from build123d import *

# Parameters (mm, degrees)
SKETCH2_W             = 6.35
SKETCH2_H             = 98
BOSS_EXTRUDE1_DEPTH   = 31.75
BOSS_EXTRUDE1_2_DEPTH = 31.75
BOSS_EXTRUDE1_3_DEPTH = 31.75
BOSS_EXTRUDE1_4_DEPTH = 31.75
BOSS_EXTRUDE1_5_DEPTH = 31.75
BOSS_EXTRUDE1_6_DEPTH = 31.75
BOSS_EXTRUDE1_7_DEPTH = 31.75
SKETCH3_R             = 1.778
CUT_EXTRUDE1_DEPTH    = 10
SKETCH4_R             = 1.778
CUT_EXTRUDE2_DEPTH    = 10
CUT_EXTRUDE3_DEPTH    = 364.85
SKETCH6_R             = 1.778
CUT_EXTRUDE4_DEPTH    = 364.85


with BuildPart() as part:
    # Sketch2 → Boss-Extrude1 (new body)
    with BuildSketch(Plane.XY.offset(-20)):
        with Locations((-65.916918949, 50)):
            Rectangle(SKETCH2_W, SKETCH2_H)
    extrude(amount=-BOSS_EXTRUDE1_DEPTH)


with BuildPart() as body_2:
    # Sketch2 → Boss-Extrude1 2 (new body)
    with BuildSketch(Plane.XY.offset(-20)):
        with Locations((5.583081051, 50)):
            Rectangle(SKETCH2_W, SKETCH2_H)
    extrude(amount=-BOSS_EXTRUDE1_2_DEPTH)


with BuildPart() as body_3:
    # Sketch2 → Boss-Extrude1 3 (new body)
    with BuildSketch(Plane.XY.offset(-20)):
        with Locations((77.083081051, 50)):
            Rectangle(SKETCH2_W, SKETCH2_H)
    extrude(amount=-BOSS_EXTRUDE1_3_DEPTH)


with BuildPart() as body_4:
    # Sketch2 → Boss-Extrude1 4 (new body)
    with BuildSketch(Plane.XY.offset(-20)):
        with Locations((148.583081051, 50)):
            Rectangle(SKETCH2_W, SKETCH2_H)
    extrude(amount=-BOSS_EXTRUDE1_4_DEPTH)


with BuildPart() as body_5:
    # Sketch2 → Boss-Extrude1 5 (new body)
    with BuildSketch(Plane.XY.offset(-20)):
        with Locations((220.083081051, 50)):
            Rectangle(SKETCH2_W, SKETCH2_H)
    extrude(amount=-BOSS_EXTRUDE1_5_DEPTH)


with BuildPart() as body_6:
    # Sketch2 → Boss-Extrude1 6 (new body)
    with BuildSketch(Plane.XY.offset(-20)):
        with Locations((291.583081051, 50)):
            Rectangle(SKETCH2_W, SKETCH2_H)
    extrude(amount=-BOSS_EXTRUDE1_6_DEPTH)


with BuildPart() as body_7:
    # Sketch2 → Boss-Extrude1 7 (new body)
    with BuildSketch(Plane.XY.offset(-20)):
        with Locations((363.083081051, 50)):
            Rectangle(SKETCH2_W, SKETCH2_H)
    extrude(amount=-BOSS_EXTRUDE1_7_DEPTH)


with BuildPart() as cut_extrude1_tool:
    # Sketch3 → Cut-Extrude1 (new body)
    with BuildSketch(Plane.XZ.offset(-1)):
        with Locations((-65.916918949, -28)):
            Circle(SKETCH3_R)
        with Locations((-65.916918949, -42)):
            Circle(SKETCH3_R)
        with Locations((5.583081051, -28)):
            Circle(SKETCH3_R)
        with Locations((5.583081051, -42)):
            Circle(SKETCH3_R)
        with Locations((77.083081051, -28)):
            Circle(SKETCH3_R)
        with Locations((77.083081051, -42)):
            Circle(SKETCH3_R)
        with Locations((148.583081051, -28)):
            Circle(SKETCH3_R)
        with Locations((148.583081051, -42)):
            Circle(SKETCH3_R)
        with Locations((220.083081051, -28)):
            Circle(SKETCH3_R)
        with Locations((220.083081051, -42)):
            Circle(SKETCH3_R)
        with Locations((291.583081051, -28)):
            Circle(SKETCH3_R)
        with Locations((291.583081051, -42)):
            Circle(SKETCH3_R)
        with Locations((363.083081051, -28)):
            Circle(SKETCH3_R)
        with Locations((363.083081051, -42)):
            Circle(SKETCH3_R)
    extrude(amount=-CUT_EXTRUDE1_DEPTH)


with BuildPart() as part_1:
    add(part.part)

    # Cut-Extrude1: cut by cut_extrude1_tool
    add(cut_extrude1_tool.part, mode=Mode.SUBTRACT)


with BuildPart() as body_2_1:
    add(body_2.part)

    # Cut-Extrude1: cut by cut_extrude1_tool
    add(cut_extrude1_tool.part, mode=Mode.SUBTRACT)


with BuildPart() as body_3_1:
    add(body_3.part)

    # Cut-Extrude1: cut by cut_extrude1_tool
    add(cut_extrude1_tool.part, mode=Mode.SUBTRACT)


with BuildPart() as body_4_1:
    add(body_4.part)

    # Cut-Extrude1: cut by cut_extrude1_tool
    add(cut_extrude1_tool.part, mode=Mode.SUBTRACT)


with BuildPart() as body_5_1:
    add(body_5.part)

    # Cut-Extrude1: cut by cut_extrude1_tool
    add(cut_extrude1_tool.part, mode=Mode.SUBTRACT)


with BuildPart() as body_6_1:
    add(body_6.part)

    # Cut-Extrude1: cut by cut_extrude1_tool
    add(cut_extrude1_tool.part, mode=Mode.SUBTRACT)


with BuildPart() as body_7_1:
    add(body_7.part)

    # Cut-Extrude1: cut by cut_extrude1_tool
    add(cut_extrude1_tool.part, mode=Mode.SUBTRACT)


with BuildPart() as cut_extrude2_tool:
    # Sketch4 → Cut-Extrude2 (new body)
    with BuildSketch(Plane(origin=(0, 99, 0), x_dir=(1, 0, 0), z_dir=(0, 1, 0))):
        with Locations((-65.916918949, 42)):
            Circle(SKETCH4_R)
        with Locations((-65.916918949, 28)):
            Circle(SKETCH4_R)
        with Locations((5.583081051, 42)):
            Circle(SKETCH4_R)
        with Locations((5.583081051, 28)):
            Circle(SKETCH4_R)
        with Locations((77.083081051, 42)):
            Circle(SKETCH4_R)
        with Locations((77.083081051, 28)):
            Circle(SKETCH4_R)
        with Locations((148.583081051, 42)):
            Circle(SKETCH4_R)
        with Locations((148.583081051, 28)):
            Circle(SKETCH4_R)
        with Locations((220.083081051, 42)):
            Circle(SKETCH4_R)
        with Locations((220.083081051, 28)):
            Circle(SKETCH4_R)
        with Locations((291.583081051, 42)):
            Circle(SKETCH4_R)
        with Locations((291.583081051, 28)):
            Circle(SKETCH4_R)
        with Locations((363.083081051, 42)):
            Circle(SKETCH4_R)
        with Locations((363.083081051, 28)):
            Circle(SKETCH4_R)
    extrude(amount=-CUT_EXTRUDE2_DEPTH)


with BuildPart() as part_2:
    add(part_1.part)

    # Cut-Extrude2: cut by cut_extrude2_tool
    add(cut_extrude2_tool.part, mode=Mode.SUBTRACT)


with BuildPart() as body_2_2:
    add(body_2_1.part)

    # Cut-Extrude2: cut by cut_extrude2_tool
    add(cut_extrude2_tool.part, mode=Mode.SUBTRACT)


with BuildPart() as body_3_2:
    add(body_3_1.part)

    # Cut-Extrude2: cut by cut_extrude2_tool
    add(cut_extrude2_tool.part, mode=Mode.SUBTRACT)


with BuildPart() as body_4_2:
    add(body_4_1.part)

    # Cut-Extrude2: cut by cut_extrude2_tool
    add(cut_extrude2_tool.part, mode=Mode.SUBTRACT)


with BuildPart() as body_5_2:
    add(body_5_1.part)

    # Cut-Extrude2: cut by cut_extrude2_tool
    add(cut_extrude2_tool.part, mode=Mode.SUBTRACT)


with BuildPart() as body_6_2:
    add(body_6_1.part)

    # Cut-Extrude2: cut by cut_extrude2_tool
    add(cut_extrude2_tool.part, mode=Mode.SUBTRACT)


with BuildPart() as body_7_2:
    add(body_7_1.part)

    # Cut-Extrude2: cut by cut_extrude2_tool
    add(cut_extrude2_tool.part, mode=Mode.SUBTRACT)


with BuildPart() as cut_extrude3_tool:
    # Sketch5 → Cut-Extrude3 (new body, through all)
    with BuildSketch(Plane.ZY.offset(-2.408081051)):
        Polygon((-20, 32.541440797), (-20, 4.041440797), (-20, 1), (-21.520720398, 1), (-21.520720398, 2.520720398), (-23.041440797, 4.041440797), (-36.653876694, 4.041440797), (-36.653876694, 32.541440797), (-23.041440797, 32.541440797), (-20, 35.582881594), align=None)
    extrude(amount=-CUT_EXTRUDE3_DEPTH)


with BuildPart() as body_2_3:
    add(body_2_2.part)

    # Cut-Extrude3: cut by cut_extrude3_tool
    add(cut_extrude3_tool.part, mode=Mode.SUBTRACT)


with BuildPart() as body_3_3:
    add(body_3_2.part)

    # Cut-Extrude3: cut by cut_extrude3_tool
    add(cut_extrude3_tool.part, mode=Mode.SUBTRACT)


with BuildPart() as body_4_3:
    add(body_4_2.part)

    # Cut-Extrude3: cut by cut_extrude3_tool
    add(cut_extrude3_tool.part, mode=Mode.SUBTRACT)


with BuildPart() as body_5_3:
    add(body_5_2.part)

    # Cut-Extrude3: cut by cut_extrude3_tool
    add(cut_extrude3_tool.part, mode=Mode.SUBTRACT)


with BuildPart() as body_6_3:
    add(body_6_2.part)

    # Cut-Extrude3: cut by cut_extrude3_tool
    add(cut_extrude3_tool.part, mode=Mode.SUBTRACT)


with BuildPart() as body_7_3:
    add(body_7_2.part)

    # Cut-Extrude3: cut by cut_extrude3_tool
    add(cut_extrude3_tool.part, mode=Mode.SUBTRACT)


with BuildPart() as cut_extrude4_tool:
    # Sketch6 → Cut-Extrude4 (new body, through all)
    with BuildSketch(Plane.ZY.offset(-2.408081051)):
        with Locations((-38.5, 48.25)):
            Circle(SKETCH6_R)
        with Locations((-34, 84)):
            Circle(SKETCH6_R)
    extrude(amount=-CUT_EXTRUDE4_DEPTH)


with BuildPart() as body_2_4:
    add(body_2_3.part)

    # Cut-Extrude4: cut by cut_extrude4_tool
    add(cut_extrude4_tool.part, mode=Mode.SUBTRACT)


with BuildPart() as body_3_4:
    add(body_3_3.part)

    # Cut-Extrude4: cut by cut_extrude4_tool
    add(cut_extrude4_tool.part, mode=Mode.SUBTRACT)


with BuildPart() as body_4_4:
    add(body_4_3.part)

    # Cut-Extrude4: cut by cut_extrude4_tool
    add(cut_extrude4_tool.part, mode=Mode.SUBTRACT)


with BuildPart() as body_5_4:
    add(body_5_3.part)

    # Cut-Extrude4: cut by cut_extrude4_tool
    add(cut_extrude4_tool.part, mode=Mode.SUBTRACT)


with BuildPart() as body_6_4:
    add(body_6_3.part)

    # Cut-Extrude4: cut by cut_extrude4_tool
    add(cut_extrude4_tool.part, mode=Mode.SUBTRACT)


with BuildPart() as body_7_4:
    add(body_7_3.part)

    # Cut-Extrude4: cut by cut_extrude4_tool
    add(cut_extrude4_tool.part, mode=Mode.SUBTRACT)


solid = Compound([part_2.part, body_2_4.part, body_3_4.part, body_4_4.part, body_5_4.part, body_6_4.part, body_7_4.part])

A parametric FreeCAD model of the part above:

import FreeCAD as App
import Part
import Sketcher
Q = App.Units.Quantity


def add_polygon(sketch, points):
    """Adds a closed chain of lines whose ends are joined by coincident constraints."""
    first, n = sketch.GeometryCount, len(points)
    for a, b in zip(points, points[1:] + points[:1]):
        sketch.addGeometry(Part.LineSegment(App.Vector(*a, 0), App.Vector(*b, 0)), False)
    for i in range(n):
        sketch.addConstraint(Sketcher.Constraint("Coincident", first + i, 2, first + (i + 1) % n, 1))

doc = App.newDocument("Part")
body = doc.addObject("PartDesign::Body", "Body")

# Sketch on XY plane
sketch1 = body.newObject("Sketcher::SketchObject", "Sketch")
sketch1.AttachmentSupport = (doc.getObject("XY_Plane"), [""])
sketch1.MapMode = "FlatFace"
sketch1.AttachmentOffset = App.Placement(App.Vector(0, 0, -20), App.Rotation())
add_polygon(sketch1, [(-69, 99), (-69, 1), (-63, 1), (-63, 99)])  # lines 0-3
sketch1.addConstraint(Sketcher.Constraint("Vertical", 0))
sketch1.addConstraint(Sketcher.Constraint("Horizontal", 1))
sketch1.addConstraint(Sketcher.Constraint("Vertical", 2))
sketch1.addConstraint(Sketcher.Constraint("Horizontal", 3))
sketch1.addConstraint(Sketcher.Constraint("DistanceY", 0, 2, 0, 1, 98.0))
sketch1.addConstraint(Sketcher.Constraint("DistanceY", -1, 1, 0, 2, 1.0))
sketch1.addConstraint(Sketcher.Constraint("DistanceX", 1, 1, 1, 2, 6.35))
sketch1.addConstraint(Sketcher.Constraint("DistanceX", 0, 2, -1, 1, 69.091919))
pad1 = body.newObject("PartDesign::Pad", "Pad")
pad1.Profile = sketch1
pad1.Length = 31.75
pad1.Reversed = True
body2 = doc.addObject("PartDesign::Body", "Body001")

# Sketch on XY plane
sketch2 = body2.newObject("Sketcher::SketchObject", "Sketch001")
sketch2.AttachmentSupport = (doc.getObject("XY_Plane001"), [""])
sketch2.MapMode = "FlatFace"
sketch2.AttachmentOffset = App.Placement(App.Vector(0, 0, -20), App.Rotation())
add_polygon(sketch2, [(2, 99), (2, 1), (9, 1), (9, 99)])  # lines 0-3
sketch2.addConstraint(Sketcher.Constraint("Vertical", 0))
sketch2.addConstraint(Sketcher.Constraint("Horizontal", 1))
sketch2.addConstraint(Sketcher.Constraint("Vertical", 2))
sketch2.addConstraint(Sketcher.Constraint("Horizontal", 3))
sketch2.addConstraint(Sketcher.Constraint("DistanceY", 0, 2, 0, 1, 98.0))
sketch2.addConstraint(Sketcher.Constraint("DistanceY", -1, 1, 0, 2, 1.0))
sketch2.addConstraint(Sketcher.Constraint("DistanceX", 1, 1, 1, 2, 6.35))
sketch2.addConstraint(Sketcher.Constraint("DistanceX", -1, 1, 0, 2, 2.408081))
pad2 = body2.newObject("PartDesign::Pad", "Pad001")
pad2.Profile = sketch2
pad2.Length = 31.75
pad2.Reversed = True
body3 = doc.addObject("PartDesign::Body", "Body002")

# Sketch on XY plane
sketch3 = body3.newObject("Sketcher::SketchObject", "Sketch002")
sketch3.AttachmentSupport = (doc.getObject("XY_Plane002"), [""])
sketch3.MapMode = "FlatFace"
sketch3.AttachmentOffset = App.Placement(App.Vector(0, 0, -20), App.Rotation())
add_polygon(sketch3, [(74, 99), (74, 1), (80, 1), (80, 99)])  # lines 0-3
sketch3.addConstraint(Sketcher.Constraint("Vertical", 0))
sketch3.addConstraint(Sketcher.Constraint("Horizontal", 1))
sketch3.addConstraint(Sketcher.Constraint("Vertical", 2))
sketch3.addConstraint(Sketcher.Constraint("Horizontal", 3))
sketch3.addConstraint(Sketcher.Constraint("DistanceY", 0, 2, 0, 1, 98.0))
sketch3.addConstraint(Sketcher.Constraint("DistanceY", -1, 1, 0, 2, 1.0))
sketch3.addConstraint(Sketcher.Constraint("DistanceX", 1, 1, 1, 2, 6.35))
sketch3.addConstraint(Sketcher.Constraint("DistanceX", -1, 1, 0, 2, 73.908081))
pad3 = body3.newObject("PartDesign::Pad", "Pad002")
pad3.Profile = sketch3
pad3.Length = 31.75
pad3.Reversed = True
body4 = doc.addObject("PartDesign::Body", "Body003")

# Sketch on XY plane
sketch4 = body4.newObject("Sketcher::SketchObject", "Sketch003")
sketch4.AttachmentSupport = (doc.getObject("XY_Plane003"), [""])
sketch4.MapMode = "FlatFace"
sketch4.AttachmentOffset = App.Placement(App.Vector(0, 0, -20), App.Rotation())
add_polygon(sketch4, [(145, 99), (145, 1), (152, 1), (152, 99)])  # lines 0-3
sketch4.addConstraint(Sketcher.Constraint("Vertical", 0))
sketch4.addConstraint(Sketcher.Constraint("Horizontal", 1))
sketch4.addConstraint(Sketcher.Constraint("Vertical", 2))
sketch4.addConstraint(Sketcher.Constraint("Horizontal", 3))
sketch4.addConstraint(Sketcher.Constraint("DistanceY", 0, 2, 0, 1, 98.0))
sketch4.addConstraint(Sketcher.Constraint("DistanceY", -1, 1, 0, 2, 1.0))
sketch4.addConstraint(Sketcher.Constraint("DistanceX", 1, 1, 1, 2, 6.35))
sketch4.addConstraint(Sketcher.Constraint("DistanceX", -1, 1, 0, 2, 145.408081))
pad4 = body4.newObject("PartDesign::Pad", "Pad003")
pad4.Profile = sketch4
pad4.Length = 31.75
pad4.Reversed = True
body5 = doc.addObject("PartDesign::Body", "Body004")

# Sketch on XY plane
sketch5 = body5.newObject("Sketcher::SketchObject", "Sketch004")
sketch5.AttachmentSupport = (doc.getObject("XY_Plane004"), [""])
sketch5.MapMode = "FlatFace"
sketch5.AttachmentOffset = App.Placement(App.Vector(0, 0, -20), App.Rotation())
add_polygon(sketch5, [(217, 99), (217, 1), (223, 1), (223, 99)])  # lines 0-3
sketch5.addConstraint(Sketcher.Constraint("Vertical", 0))
sketch5.addConstraint(Sketcher.Constraint("Horizontal", 1))
sketch5.addConstraint(Sketcher.Constraint("Vertical", 2))
sketch5.addConstraint(Sketcher.Constraint("Horizontal", 3))
sketch5.addConstraint(Sketcher.Constraint("DistanceY", 0, 2, 0, 1, 98.0))
sketch5.addConstraint(Sketcher.Constraint("DistanceY", -1, 1, 0, 2, 1.0))
sketch5.addConstraint(Sketcher.Constraint("DistanceX", 1, 1, 1, 2, 6.35))
sketch5.addConstraint(Sketcher.Constraint("DistanceX", -1, 1, 0, 2, 216.908081))
pad5 = body5.newObject("PartDesign::Pad", "Pad004")
pad5.Profile = sketch5
pad5.Length = 31.75
pad5.Reversed = True
body6 = doc.addObject("PartDesign::Body", "Body005")

# Sketch on XY plane
sketch6 = body6.newObject("Sketcher::SketchObject", "Sketch005")
sketch6.AttachmentSupport = (doc.getObject("XY_Plane005"), [""])
sketch6.MapMode = "FlatFace"
sketch6.AttachmentOffset = App.Placement(App.Vector(0, 0, -20), App.Rotation())
add_polygon(sketch6, [(288, 99), (288, 1), (295, 1), (295, 99)])  # lines 0-3
sketch6.addConstraint(Sketcher.Constraint("Vertical", 0))
sketch6.addConstraint(Sketcher.Constraint("Horizontal", 1))
sketch6.addConstraint(Sketcher.Constraint("Vertical", 2))
sketch6.addConstraint(Sketcher.Constraint("Horizontal", 3))
sketch6.addConstraint(Sketcher.Constraint("DistanceY", 0, 2, 0, 1, 98.0))
sketch6.addConstraint(Sketcher.Constraint("DistanceY", -1, 1, 0, 2, 1.0))
sketch6.addConstraint(Sketcher.Constraint("DistanceX", 1, 1, 1, 2, 6.35))
sketch6.addConstraint(Sketcher.Constraint("DistanceX", -1, 1, 0, 2, 288.408081))
pad6 = body6.newObject("PartDesign::Pad", "Pad005")
pad6.Profile = sketch6
pad6.Length = 31.75
pad6.Reversed = True
body7 = doc.addObject("PartDesign::Body", "Body006")

# Sketch on XY plane
sketch7 = body7.newObject("Sketcher::SketchObject", "Sketch006")
sketch7.AttachmentSupport = (doc.getObject("XY_Plane006"), [""])
sketch7.MapMode = "FlatFace"
sketch7.AttachmentOffset = App.Placement(App.Vector(0, 0, -20), App.Rotation())
add_polygon(sketch7, [(360, 99), (360, 1), (366, 1), (366, 99)])  # lines 0-3
sketch7.addConstraint(Sketcher.Constraint("Vertical", 0))
sketch7.addConstraint(Sketcher.Constraint("Horizontal", 1))
sketch7.addConstraint(Sketcher.Constraint("Vertical", 2))
sketch7.addConstraint(Sketcher.Constraint("Horizontal", 3))
sketch7.addConstraint(Sketcher.Constraint("DistanceY", 0, 2, 0, 1, 98.0))
sketch7.addConstraint(Sketcher.Constraint("DistanceY", -1, 1, 0, 2, 1.0))
sketch7.addConstraint(Sketcher.Constraint("DistanceX", 1, 1, 1, 2, 6.35))
sketch7.addConstraint(Sketcher.Constraint("DistanceX", -1, 1, 0, 2, 359.908081))
pad7 = body7.newObject("PartDesign::Pad", "Pad006")
pad7.Profile = sketch7
pad7.Length = 31.75
pad7.Reversed = True
body8 = doc.addObject("PartDesign::Body", "Body007")
body8.AllowCompound = True

# Sketch on XZ plane
sketch8 = body8.newObject("Sketcher::SketchObject", "Sketch007")
sketch8.AttachmentSupport = (doc.getObject("XZ_Plane007"), [""])
sketch8.MapMode = "FlatFace"
sketch8.AttachmentOffset = App.Placement(App.Vector(0, 0, -1), App.Rotation())
sketch8.addGeometry(Part.Circle(App.Vector(-65.9, -28, 0), App.Vector(0, 0, 1), 1.8), False)
sketch8.addGeometry(Part.Circle(App.Vector(-65.9, -42, 0), App.Vector(0, 0, 1), 1.8), False)
sketch8.addGeometry(Part.Circle(App.Vector(5.6, -28, 0), App.Vector(0, 0, 1), 1.8), False)
sketch8.addGeometry(Part.Circle(App.Vector(5.6, -42, 0), App.Vector(0, 0, 1), 1.8), False)
sketch8.addGeometry(Part.Circle(App.Vector(77.1, -28, 0), App.Vector(0, 0, 1), 1.8), False)
sketch8.addGeometry(Part.Circle(App.Vector(77.1, -42, 0), App.Vector(0, 0, 1), 1.8), False)
sketch8.addGeometry(Part.Circle(App.Vector(148.6, -28, 0), App.Vector(0, 0, 1), 1.8), False)
sketch8.addGeometry(Part.Circle(App.Vector(148.6, -42, 0), App.Vector(0, 0, 1), 1.8), False)
sketch8.addGeometry(Part.Circle(App.Vector(220.1, -28, 0), App.Vector(0, 0, 1), 1.8), False)
sketch8.addGeometry(Part.Circle(App.Vector(220.1, -42, 0), App.Vector(0, 0, 1), 1.8), False)
sketch8.addGeometry(Part.Circle(App.Vector(291.6, -28, 0), App.Vector(0, 0, 1), 1.8), False)
sketch8.addGeometry(Part.Circle(App.Vector(291.6, -42, 0), App.Vector(0, 0, 1), 1.8), False)
sketch8.addGeometry(Part.Circle(App.Vector(363.1, -28, 0), App.Vector(0, 0, 1), 1.8), False)
sketch8.addGeometry(Part.Circle(App.Vector(363.1, -42, 0), App.Vector(0, 0, 1), 1.8), False)
sketch8.addConstraint(Sketcher.Constraint("Equal", 0, 1))
sketch8.addConstraint(Sketcher.Constraint("Equal", 1, 2))
sketch8.addConstraint(Sketcher.Constraint("Equal", 2, 3))
sketch8.addConstraint(Sketcher.Constraint("Equal", 3, 4))
sketch8.addConstraint(Sketcher.Constraint("Equal", 4, 5))
sketch8.addConstraint(Sketcher.Constraint("Equal", 5, 6))
sketch8.addConstraint(Sketcher.Constraint("Equal", 6, 7))
sketch8.addConstraint(Sketcher.Constraint("Equal", 7, 8))
sketch8.addConstraint(Sketcher.Constraint("Equal", 8, 9))
sketch8.addConstraint(Sketcher.Constraint("Equal", 9, 10))
sketch8.addConstraint(Sketcher.Constraint("Equal", 10, 11))
sketch8.addConstraint(Sketcher.Constraint("Equal", 11, 12))
sketch8.addConstraint(Sketcher.Constraint("Equal", 12, 13))
sketch8.addConstraint(Sketcher.Constraint("Horizontal", 0, 3, 2, 3))
sketch8.addConstraint(Sketcher.Constraint("Horizontal", 1, 3, 3, 3))
sketch8.addConstraint(Sketcher.Constraint("Horizontal", 2, 3, 4, 3))
sketch8.addConstraint(Sketcher.Constraint("Horizontal", 3, 3, 5, 3))
sketch8.addConstraint(Sketcher.Constraint("Horizontal", 4, 3, 6, 3))
sketch8.addConstraint(Sketcher.Constraint("Horizontal", 5, 3, 7, 3))
sketch8.addConstraint(Sketcher.Constraint("Horizontal", 6, 3, 8, 3))
sketch8.addConstraint(Sketcher.Constraint("Horizontal", 7, 3, 9, 3))
sketch8.addConstraint(Sketcher.Constraint("Horizontal", 8, 3, 10, 3))
sketch8.addConstraint(Sketcher.Constraint("Horizontal", 9, 3, 11, 3))
sketch8.addConstraint(Sketcher.Constraint("Horizontal", 10, 3, 12, 3))
sketch8.addConstraint(Sketcher.Constraint("Horizontal", 11, 3, 13, 3))
sketch8.addConstraint(Sketcher.Constraint("Vertical", 0, 3, 1, 3))
sketch8.addConstraint(Sketcher.Constraint("Vertical", 2, 3, 3, 3))
sketch8.addConstraint(Sketcher.Constraint("Vertical", 4, 3, 5, 3))
sketch8.addConstraint(Sketcher.Constraint("Vertical", 6, 3, 7, 3))
sketch8.addConstraint(Sketcher.Constraint("Vertical", 8, 3, 9, 3))
sketch8.addConstraint(Sketcher.Constraint("Vertical", 10, 3, 11, 3))
sketch8.addConstraint(Sketcher.Constraint("Vertical", 12, 3, 13, 3))
sketch8.addConstraint(Sketcher.Constraint("Diameter", 0, 3.556))
sketch8.addConstraint(Sketcher.Constraint("DistanceY", 0, 3, -1, 1, 28.0))
sketch8.addConstraint(Sketcher.Constraint("DistanceY", 1, 3, -1, 1, 42.0))
sketch8.addConstraint(Sketcher.Constraint("DistanceX", 0, 3, 4, 3, 143.0))
sketch8.addConstraint(Sketcher.Constraint("DistanceX", 2, 3, 6, 3, 143.0))
sketch8.addConstraint(Sketcher.Constraint("DistanceX", 4, 3, 8, 3, 143.0))
sketch8.addConstraint(Sketcher.Constraint("DistanceX", 6, 3, 10, 3, 143.0))
sketch8.addConstraint(Sketcher.Constraint("DistanceX", 8, 3, 12, 3, 143.0))
sketch8.addConstraint(Sketcher.Constraint("DistanceX", 0, 3, 2, 3, 71.5))
sketch8.addConstraint(Sketcher.Constraint("DistanceX", 0, 3, -1, 1, 65.916919))
pad8 = body8.newObject("PartDesign::Pad", "Pad007")
pad8.Profile = sketch8
pad8.Length = 10
pad8.Reversed = True
doc.recompute()

body9 = doc.addObject("PartDesign::Body", "Body008")
body9.BaseFeature = body8
boolean = body.newObject("PartDesign::Boolean", "Boolean")
boolean.Type = "Cut"
boolean.addObjects([body9])
doc.recompute()

body10 = doc.addObject("PartDesign::Body", "Body009")
body10.BaseFeature = body8
boolean2 = body2.newObject("PartDesign::Boolean", "Boolean001")
boolean2.Type = "Cut"
boolean2.addObjects([body10])
doc.recompute()

body11 = doc.addObject("PartDesign::Body", "Body010")
body11.BaseFeature = body8
boolean3 = body3.newObject("PartDesign::Boolean", "Boolean002")
boolean3.Type = "Cut"
boolean3.addObjects([body11])
doc.recompute()

body12 = doc.addObject("PartDesign::Body", "Body011")
body12.BaseFeature = body8
boolean4 = body4.newObject("PartDesign::Boolean", "Boolean003")
boolean4.Type = "Cut"
boolean4.addObjects([body12])
doc.recompute()

body13 = doc.addObject("PartDesign::Body", "Body012")
body13.BaseFeature = body8
boolean5 = body5.newObject("PartDesign::Boolean", "Boolean004")
boolean5.Type = "Cut"
boolean5.addObjects([body13])
doc.recompute()

body14 = doc.addObject("PartDesign::Body", "Body013")
body14.BaseFeature = body8
boolean6 = body6.newObject("PartDesign::Boolean", "Boolean005")
boolean6.Type = "Cut"
boolean6.addObjects([body14])
doc.recompute()

boolean7 = body7.newObject("PartDesign::Boolean", "Boolean006")
boolean7.Type = "Cut"
boolean7.addObjects([body8])
body15 = doc.addObject("PartDesign::Body", "Body014")
body15.AllowCompound = True

# Sketch on XZ plane
sketch9 = body15.newObject("Sketcher::SketchObject", "Sketch008")
sketch9.AttachmentSupport = (doc.getObject("XZ_Plane014"), [""])
sketch9.MapMode = "FlatFace"
sketch9.AttachmentOffset = App.Placement(App.Vector(0, 0, -99), App.Rotation())
sketch9.addGeometry(Part.Circle(App.Vector(-65.9, -42, 0), App.Vector(0, 0, 1), 1.8), False)
sketch9.addGeometry(Part.Circle(App.Vector(-65.9, -28, 0), App.Vector(0, 0, 1), 1.8), False)
sketch9.addGeometry(Part.Circle(App.Vector(5.6, -42, 0), App.Vector(0, 0, 1), 1.8), False)
sketch9.addGeometry(Part.Circle(App.Vector(5.6, -28, 0), App.Vector(0, 0, 1), 1.8), False)
sketch9.addGeometry(Part.Circle(App.Vector(77.1, -42, 0), App.Vector(0, 0, 1), 1.8), False)
sketch9.addGeometry(Part.Circle(App.Vector(77.1, -28, 0), App.Vector(0, 0, 1), 1.8), False)
sketch9.addGeometry(Part.Circle(App.Vector(148.6, -42, 0), App.Vector(0, 0, 1), 1.8), False)
sketch9.addGeometry(Part.Circle(App.Vector(148.6, -28, 0), App.Vector(0, 0, 1), 1.8), False)
sketch9.addGeometry(Part.Circle(App.Vector(220.1, -42, 0), App.Vector(0, 0, 1), 1.8), False)
sketch9.addGeometry(Part.Circle(App.Vector(220.1, -28, 0), App.Vector(0, 0, 1), 1.8), False)
sketch9.addGeometry(Part.Circle(App.Vector(291.6, -42, 0), App.Vector(0, 0, 1), 1.8), False)
sketch9.addGeometry(Part.Circle(App.Vector(291.6, -28, 0), App.Vector(0, 0, 1), 1.8), False)
sketch9.addGeometry(Part.Circle(App.Vector(363.1, -42, 0), App.Vector(0, 0, 1), 1.8), False)
sketch9.addGeometry(Part.Circle(App.Vector(363.1, -28, 0), App.Vector(0, 0, 1), 1.8), False)
sketch9.addConstraint(Sketcher.Constraint("Equal", 0, 1))
sketch9.addConstraint(Sketcher.Constraint("Equal", 1, 2))
sketch9.addConstraint(Sketcher.Constraint("Equal", 2, 3))
sketch9.addConstraint(Sketcher.Constraint("Equal", 3, 4))
sketch9.addConstraint(Sketcher.Constraint("Equal", 4, 5))
sketch9.addConstraint(Sketcher.Constraint("Equal", 5, 6))
sketch9.addConstraint(Sketcher.Constraint("Equal", 6, 7))
sketch9.addConstraint(Sketcher.Constraint("Equal", 7, 8))
sketch9.addConstraint(Sketcher.Constraint("Equal", 8, 9))
sketch9.addConstraint(Sketcher.Constraint("Equal", 9, 10))
sketch9.addConstraint(Sketcher.Constraint("Equal", 10, 11))
sketch9.addConstraint(Sketcher.Constraint("Equal", 11, 12))
sketch9.addConstraint(Sketcher.Constraint("Equal", 12, 13))
sketch9.addConstraint(Sketcher.Constraint("Horizontal", 0, 3, 2, 3))
sketch9.addConstraint(Sketcher.Constraint("Horizontal", 1, 3, 3, 3))
sketch9.addConstraint(Sketcher.Constraint("Horizontal", 2, 3, 4, 3))
sketch9.addConstraint(Sketcher.Constraint("Horizontal", 3, 3, 5, 3))
sketch9.addConstraint(Sketcher.Constraint("Horizontal", 4, 3, 6, 3))
sketch9.addConstraint(Sketcher.Constraint("Horizontal", 5, 3, 7, 3))
sketch9.addConstraint(Sketcher.Constraint("Horizontal", 6, 3, 8, 3))
sketch9.addConstraint(Sketcher.Constraint("Horizontal", 7, 3, 9, 3))
sketch9.addConstraint(Sketcher.Constraint("Horizontal", 8, 3, 10, 3))
sketch9.addConstraint(Sketcher.Constraint("Horizontal", 9, 3, 11, 3))
sketch9.addConstraint(Sketcher.Constraint("Horizontal", 10, 3, 12, 3))
sketch9.addConstraint(Sketcher.Constraint("Horizontal", 11, 3, 13, 3))
sketch9.addConstraint(Sketcher.Constraint("Vertical", 0, 3, 1, 3))
sketch9.addConstraint(Sketcher.Constraint("Vertical", 2, 3, 3, 3))
sketch9.addConstraint(Sketcher.Constraint("Vertical", 4, 3, 5, 3))
sketch9.addConstraint(Sketcher.Constraint("Vertical", 6, 3, 7, 3))
sketch9.addConstraint(Sketcher.Constraint("Vertical", 8, 3, 9, 3))
sketch9.addConstraint(Sketcher.Constraint("Vertical", 10, 3, 11, 3))
sketch9.addConstraint(Sketcher.Constraint("Vertical", 12, 3, 13, 3))
sketch9.addConstraint(Sketcher.Constraint("Diameter", 0, 3.556))
sketch9.addConstraint(Sketcher.Constraint("DistanceY", 0, 3, -1, 1, 42.0))
sketch9.addConstraint(Sketcher.Constraint("DistanceY", 1, 3, -1, 1, 28.0))
sketch9.addConstraint(Sketcher.Constraint("DistanceX", 0, 3, 4, 3, 143.0))
sketch9.addConstraint(Sketcher.Constraint("DistanceX", 2, 3, 6, 3, 143.0))
sketch9.addConstraint(Sketcher.Constraint("DistanceX", 4, 3, 8, 3, 143.0))
sketch9.addConstraint(Sketcher.Constraint("DistanceX", 6, 3, 10, 3, 143.0))
sketch9.addConstraint(Sketcher.Constraint("DistanceX", 8, 3, 12, 3, 143.0))
sketch9.addConstraint(Sketcher.Constraint("DistanceX", 0, 3, 2, 3, 71.5))
sketch9.addConstraint(Sketcher.Constraint("DistanceX", 0, 3, -1, 1, 65.916919))
pad9 = body15.newObject("PartDesign::Pad", "Pad008")
pad9.Profile = sketch9
pad9.Length = 10
doc.recompute()

body16 = doc.addObject("PartDesign::Body", "Body015")
body16.BaseFeature = body15
boolean8 = body.newObject("PartDesign::Boolean", "Boolean007")
boolean8.Type = "Cut"
boolean8.addObjects([body16])
doc.recompute()

body17 = doc.addObject("PartDesign::Body", "Body016")
body17.BaseFeature = body15
boolean9 = body2.newObject("PartDesign::Boolean", "Boolean008")
boolean9.Type = "Cut"
boolean9.addObjects([body17])
doc.recompute()

body18 = doc.addObject("PartDesign::Body", "Body017")
body18.BaseFeature = body15
boolean10 = body3.newObject("PartDesign::Boolean", "Boolean009")
boolean10.Type = "Cut"
boolean10.addObjects([body18])
doc.recompute()

body19 = doc.addObject("PartDesign::Body", "Body018")
body19.BaseFeature = body15
boolean11 = body4.newObject("PartDesign::Boolean", "Boolean010")
boolean11.Type = "Cut"
boolean11.addObjects([body19])
doc.recompute()

body20 = doc.addObject("PartDesign::Body", "Body019")
body20.BaseFeature = body15
boolean12 = body5.newObject("PartDesign::Boolean", "Boolean011")
boolean12.Type = "Cut"
boolean12.addObjects([body20])
doc.recompute()

body21 = doc.addObject("PartDesign::Body", "Body020")
body21.BaseFeature = body15
boolean13 = body6.newObject("PartDesign::Boolean", "Boolean012")
boolean13.Type = "Cut"
boolean13.addObjects([body21])
doc.recompute()

boolean14 = body7.newObject("PartDesign::Boolean", "Boolean013")
boolean14.Type = "Cut"
boolean14.addObjects([body15])
body22 = doc.addObject("PartDesign::Body", "Body021")

# Sketch on YZ plane
sketch10 = body22.newObject("Sketcher::SketchObject", "Sketch009")
sketch10.AttachmentSupport = (doc.getObject("YZ_Plane021"), [""])
sketch10.MapMode = "FlatFace"
sketch10.AttachmentOffset = App.Placement(App.Vector(0, 0, 2.408081), App.Rotation())
add_polygon(sketch10, [(1, -20), (35.6, -20), (32.5, -23), (32.5, -36.7), (4, -36.7), (4, -23), (2.5, -21.5), (1, -21.5)])  # lines 0-7
sketch10.addConstraint(Sketcher.Constraint("Horizontal", 0))
sketch10.addConstraint(Sketcher.Constraint("Vertical", 2))
sketch10.addConstraint(Sketcher.Constraint("Horizontal", 3))
sketch10.addConstraint(Sketcher.Constraint("Vertical", 4))
sketch10.addConstraint(Sketcher.Constraint("Horizontal", 6))
sketch10.addConstraint(Sketcher.Constraint("Vertical", 7))
sketch10.addConstraint(Sketcher.Constraint("Perpendicular", 1, 5))
sketch10.addConstraint(Sketcher.Constraint("Horizontal", 1, 2, 4, 2))
sketch10.addConstraint(Sketcher.Constraint("Equal", 6, 7))
sketch10.addConstraint(Sketcher.Constraint("Angle", 1, Q("-135 deg")))
sketch10.addConstraint(Sketcher.Constraint("DistanceX", 3, 2, 3, 1, 28.5))
sketch10.addConstraint(Sketcher.Constraint("DistanceY", 0, 2, -1, 1, 20.0))
sketch10.addConstraint(Sketcher.Constraint("DistanceX", -1, 1, 6, 2, 1.0))
sketch10.addConstraint(Sketcher.Constraint("DistanceX", 0, 1, 0, 2, 34.582882))
sketch10.addConstraint(Sketcher.Constraint("DistanceX", 6, 2, 6, 1, 1.52072))
sketch10.addConstraint(Sketcher.Constraint("DistanceY", 2, 2, 2, 1, 13.612436))
pad10 = body22.newObject("PartDesign::Pad", "Pad009")
pad10.Profile = sketch10
pad10.Length = 364.85
doc.recompute()

body23 = doc.addObject("PartDesign::Body", "Body022")
body23.BaseFeature = body22
boolean15 = body2.newObject("PartDesign::Boolean", "Boolean014")
boolean15.Type = "Cut"
boolean15.addObjects([body23])
doc.recompute()

body24 = doc.addObject("PartDesign::Body", "Body023")
body24.BaseFeature = body22
boolean16 = body3.newObject("PartDesign::Boolean", "Boolean015")
boolean16.Type = "Cut"
boolean16.addObjects([body24])
doc.recompute()

body25 = doc.addObject("PartDesign::Body", "Body024")
body25.BaseFeature = body22
boolean17 = body4.newObject("PartDesign::Boolean", "Boolean016")
boolean17.Type = "Cut"
boolean17.addObjects([body25])
doc.recompute()

body26 = doc.addObject("PartDesign::Body", "Body025")
body26.BaseFeature = body22
boolean18 = body5.newObject("PartDesign::Boolean", "Boolean017")
boolean18.Type = "Cut"
boolean18.addObjects([body26])
doc.recompute()

body27 = doc.addObject("PartDesign::Body", "Body026")
body27.BaseFeature = body22
boolean19 = body6.newObject("PartDesign::Boolean", "Boolean018")
boolean19.Type = "Cut"
boolean19.addObjects([body27])
doc.recompute()

boolean20 = body7.newObject("PartDesign::Boolean", "Boolean019")
boolean20.Type = "Cut"
boolean20.addObjects([body22])
body28 = doc.addObject("PartDesign::Body", "Body027")
body28.AllowCompound = True

# Sketch on YZ plane
sketch11 = body28.newObject("Sketcher::SketchObject", "Sketch010")
sketch11.AttachmentSupport = (doc.getObject("YZ_Plane027"), [""])
sketch11.MapMode = "FlatFace"
sketch11.AttachmentOffset = App.Placement(App.Vector(0, 0, 2.408081), App.Rotation())
sketch11.addGeometry(Part.Circle(App.Vector(48.2, -38.5, 0), App.Vector(0, 0, 1), 1.8), False)
sketch11.addGeometry(Part.Circle(App.Vector(84, -34, 0), App.Vector(0, 0, 1), 1.8), False)
sketch11.addConstraint(Sketcher.Constraint("Equal", 0, 1))
sketch11.addConstraint(Sketcher.Constraint("Diameter", 0, 3.556))
sketch11.addConstraint(Sketcher.Constraint("DistanceX", -1, 1, 1, 3, 84.0))
sketch11.addConstraint(Sketcher.Constraint("DistanceY", 1, 3, -1, 1, 34.0))
sketch11.addConstraint(Sketcher.Constraint("DistanceY", 0, 3, -1, 1, 38.5))
sketch11.addConstraint(Sketcher.Constraint("DistanceX", -1, 1, 0, 3, 48.25))
pad11 = body28.newObject("PartDesign::Pad", "Pad010")
pad11.Profile = sketch11
pad11.Length = 364.85
doc.recompute()

body29 = doc.addObject("PartDesign::Body", "Body028")
body29.BaseFeature = body28
boolean21 = body2.newObject("PartDesign::Boolean", "Boolean020")
boolean21.Type = "Cut"
boolean21.addObjects([body29])
doc.recompute()

body30 = doc.addObject("PartDesign::Body", "Body029")
body30.BaseFeature = body28
boolean22 = body3.newObject("PartDesign::Boolean", "Boolean021")
boolean22.Type = "Cut"
boolean22.addObjects([body30])
doc.recompute()

body31 = doc.addObject("PartDesign::Body", "Body030")
body31.BaseFeature = body28
boolean23 = body4.newObject("PartDesign::Boolean", "Boolean022")
boolean23.Type = "Cut"
boolean23.addObjects([body31])
doc.recompute()

body32 = doc.addObject("PartDesign::Body", "Body031")
body32.BaseFeature = body28
boolean24 = body5.newObject("PartDesign::Boolean", "Boolean023")
boolean24.Type = "Cut"
boolean24.addObjects([body32])
doc.recompute()

body33 = doc.addObject("PartDesign::Body", "Body032")
body33.BaseFeature = body28
boolean25 = body6.newObject("PartDesign::Boolean", "Boolean024")
boolean25.Type = "Cut"
boolean25.addObjects([body33])
doc.recompute()

boolean26 = body7.newObject("PartDesign::Boolean", "Boolean025")
boolean26.Type = "Cut"
boolean26.addObjects([body28])

doc.recompute()
